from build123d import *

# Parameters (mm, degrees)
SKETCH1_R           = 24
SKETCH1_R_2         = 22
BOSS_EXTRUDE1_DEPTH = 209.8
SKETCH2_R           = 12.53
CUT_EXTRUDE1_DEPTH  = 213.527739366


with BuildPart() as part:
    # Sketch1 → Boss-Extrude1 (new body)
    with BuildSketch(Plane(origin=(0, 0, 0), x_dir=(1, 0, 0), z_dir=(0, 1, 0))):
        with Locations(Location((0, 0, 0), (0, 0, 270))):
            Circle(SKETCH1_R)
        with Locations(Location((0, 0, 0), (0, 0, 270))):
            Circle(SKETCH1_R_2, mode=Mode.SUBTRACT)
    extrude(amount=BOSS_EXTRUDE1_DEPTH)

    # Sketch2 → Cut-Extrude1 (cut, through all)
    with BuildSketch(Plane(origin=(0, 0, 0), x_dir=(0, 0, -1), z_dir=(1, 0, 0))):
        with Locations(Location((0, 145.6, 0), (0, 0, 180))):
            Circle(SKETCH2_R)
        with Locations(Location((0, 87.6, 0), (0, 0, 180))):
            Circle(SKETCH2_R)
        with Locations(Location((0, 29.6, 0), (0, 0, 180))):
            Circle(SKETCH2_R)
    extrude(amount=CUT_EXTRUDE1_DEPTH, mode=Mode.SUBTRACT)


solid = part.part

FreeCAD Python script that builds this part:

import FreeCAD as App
import Part
import Sketcher

doc = App.newDocument("Part")
body = doc.addObject("PartDesign::Body", "Body")

sketch1 = body.newObject("Sketcher::SketchObject", "Sketch")
sketch1.AttachmentSupport = (doc.getObject("XZ_Plane"), [""])
sketch1.MapMode = "FlatFace"
sketch1.addGeometry([
    Part.Circle(App.Vector(0, 0, 0), App.Vector(0, 0, 1), 24),
    Part.Circle(App.Vector(0, 0, 0), App.Vector(0, 0, 1), 22),
], False)
sketch1.addConstraint([
    Sketcher.Constraint("Coincident", 0, 3, -1, 1),
    Sketcher.Constraint("Coincident", 1, 3, -1, 1),
    Sketcher.Constraint("Diameter", 0, 48.0),
    Sketcher.Constraint("Diameter", 1, 44.0),
])
pad1 = body.newObject("PartDesign::Pad", "Pad")
pad1.Profile = sketch1
pad1.Length = 209.8
pad1.Reversed = True

sketch2 = body.newObject("Sketcher::SketchObject", "Sketch001")
sketch2.AttachmentSupport = (doc.getObject("YZ_Plane"), [""])
sketch2.MapMode = "FlatFace"
sketch2.addGeometry([
    Part.Circle(App.Vector(146, 0, 0), App.Vector(0, 0, 1), 13),
    Part.Circle(App.Vector(88, 0, 0), App.Vector(0, 0, 1), 13),
    Part.Circle(App.Vector(30, 0, 0), App.Vector(0, 0, 1), 13),
], False)
sketch2.addConstraint([
    Sketcher.Constraint("Equal", 0, 1),
    Sketcher.Constraint("Equal", 1, 2),
    Sketcher.Constraint("PointOnObject", 0, 3, -1),
    Sketcher.Constraint("PointOnObject", 1, 3, -1),
    Sketcher.Constraint("PointOnObject", 2, 3, -1),
    Sketcher.Constraint("Diameter", 0, 25.06),
    Sketcher.Constraint("DistanceX", 1, 3, 0, 3, 58.0),
    Sketcher.Constraint("DistanceX", 2, 3, 1, 3, 58.0),
    Sketcher.Constraint("DistanceX", -1, 1, 0, 3, 145.6),
])
pocket1 = body.newObject("PartDesign::Pocket", "Pocket")
pocket1.Profile = sketch2
pocket1.Type = "ThroughAll"
pocket1.Reversed = True

doc.recompute()
